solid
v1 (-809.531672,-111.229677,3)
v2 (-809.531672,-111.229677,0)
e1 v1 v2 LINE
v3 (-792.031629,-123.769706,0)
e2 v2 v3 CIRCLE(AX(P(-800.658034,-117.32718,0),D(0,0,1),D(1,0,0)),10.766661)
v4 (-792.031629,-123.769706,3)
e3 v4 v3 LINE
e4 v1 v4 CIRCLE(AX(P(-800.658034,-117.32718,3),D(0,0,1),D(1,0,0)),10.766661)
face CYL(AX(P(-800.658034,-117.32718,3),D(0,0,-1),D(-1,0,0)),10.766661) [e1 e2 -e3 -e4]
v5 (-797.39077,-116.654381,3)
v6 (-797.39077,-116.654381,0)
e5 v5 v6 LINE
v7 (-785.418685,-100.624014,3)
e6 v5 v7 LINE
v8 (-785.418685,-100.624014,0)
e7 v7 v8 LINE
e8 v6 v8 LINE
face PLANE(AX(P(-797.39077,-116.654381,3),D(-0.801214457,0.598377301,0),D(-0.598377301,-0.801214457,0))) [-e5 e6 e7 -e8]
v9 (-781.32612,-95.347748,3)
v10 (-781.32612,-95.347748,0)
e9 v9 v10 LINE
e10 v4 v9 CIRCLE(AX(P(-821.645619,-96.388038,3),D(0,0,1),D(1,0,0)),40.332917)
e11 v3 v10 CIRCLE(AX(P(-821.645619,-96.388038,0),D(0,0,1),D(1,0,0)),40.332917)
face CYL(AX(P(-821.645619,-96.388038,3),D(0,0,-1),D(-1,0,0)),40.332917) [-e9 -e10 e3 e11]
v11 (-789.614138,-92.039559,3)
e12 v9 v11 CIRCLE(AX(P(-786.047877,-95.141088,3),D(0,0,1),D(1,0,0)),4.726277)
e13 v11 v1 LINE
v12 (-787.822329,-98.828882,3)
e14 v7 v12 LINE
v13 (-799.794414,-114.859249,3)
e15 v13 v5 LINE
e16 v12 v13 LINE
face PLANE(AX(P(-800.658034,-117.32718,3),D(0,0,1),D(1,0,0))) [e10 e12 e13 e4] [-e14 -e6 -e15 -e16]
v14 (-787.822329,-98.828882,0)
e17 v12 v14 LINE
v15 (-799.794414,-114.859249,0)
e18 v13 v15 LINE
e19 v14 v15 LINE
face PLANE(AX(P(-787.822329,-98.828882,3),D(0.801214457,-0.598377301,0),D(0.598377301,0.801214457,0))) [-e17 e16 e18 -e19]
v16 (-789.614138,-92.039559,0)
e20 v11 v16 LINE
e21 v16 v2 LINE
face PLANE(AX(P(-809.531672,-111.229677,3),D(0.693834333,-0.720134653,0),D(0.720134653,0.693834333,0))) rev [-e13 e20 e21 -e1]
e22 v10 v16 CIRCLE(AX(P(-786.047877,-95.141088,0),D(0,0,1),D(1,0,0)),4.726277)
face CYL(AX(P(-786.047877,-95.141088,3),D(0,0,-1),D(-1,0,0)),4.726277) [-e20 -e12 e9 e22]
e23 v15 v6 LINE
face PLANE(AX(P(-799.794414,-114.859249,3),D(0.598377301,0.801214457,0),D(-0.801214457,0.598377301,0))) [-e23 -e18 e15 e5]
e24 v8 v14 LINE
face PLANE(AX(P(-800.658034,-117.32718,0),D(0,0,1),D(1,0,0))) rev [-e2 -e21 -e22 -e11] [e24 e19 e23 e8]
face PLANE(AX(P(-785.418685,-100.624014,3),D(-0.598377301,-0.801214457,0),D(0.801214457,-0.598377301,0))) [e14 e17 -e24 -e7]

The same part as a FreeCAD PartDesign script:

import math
import FreeCAD as App
import Part
import Sketcher


def add_polygon(sketch, points):
    """Adds a closed chain of lines whose ends are joined by coincident constraints."""
    first, n = sketch.GeometryCount, len(points)
    for a, b in zip(points, points[1:] + points[:1]):
        sketch.addGeometry(Part.LineSegment(App.Vector(*a, 0), App.Vector(*b, 0)), False)
    for i in range(n):
        sketch.addConstraint(Sketcher.Constraint("Coincident", first + i, 2, first + (i + 1) % n, 1))

doc = App.newDocument("Part")
body = doc.addObject("PartDesign::Body", "Body")

sketch1 = doc.addObject("Sketcher::SketchObject", "Sketch")
body.addObject(sketch1)
sketch1.AttachmentSupport = (doc.XY_Plane, [""])
sketch1.MapMode = "FlatFace"
sketch1.addGeometry(Part.LineSegment(App.Vector(-789.6, -92, 0), App.Vector(-809.5, -111.2, 0)), False)
sketch1.addGeometry(Part.ArcOfCircle(Part.Circle(App.Vector(-800.7, -117.3, 0), App.Vector(0, 0, 1), 10.8), math.radians(146), math.radians(323)), False)
sketch1.addGeometry(Part.ArcOfCircle(Part.Circle(App.Vector(-821.6, -96.4, 0), App.Vector(0, 0, 1), 40.3), math.radians(-43), math.radians(1)), False)
sketch1.addGeometry(Part.ArcOfCircle(Part.Circle(App.Vector(-786, -95.1, 0), App.Vector(0, 0, 1), 4.7), math.radians(-3), math.radians(139)), False)
add_polygon(sketch1, [(-797.4, -116.7), (-799.8, -114.9), (-787.8, -98.8), (-785.4, -100.6)])
sketch1.addConstraint(Sketcher.Constraint("Coincident", 0, 2, 1, 1))
sketch1.addConstraint(Sketcher.Constraint("Coincident", 1, 2, 2, 1))
sketch1.addConstraint(Sketcher.Constraint("Coincident", 2, 2, 3, 1))
sketch1.addConstraint(Sketcher.Constraint("Coincident", 3, 2, 0, 1))
sketch1.addConstraint(Sketcher.Constraint("Perpendicular", 4, 5))
sketch1.addConstraint(Sketcher.Constraint("Perpendicular", 5, 6))
sketch1.addConstraint(Sketcher.Constraint("Perpendicular", 6, 7))
sketch1.addConstraint(Sketcher.Constraint("Distance", 4, 3.0))
sketch1.addConstraint(Sketcher.Constraint("Radius", 1, 10.766661))
sketch1.addConstraint(Sketcher.Constraint("Radius", 2, 40.332917))
sketch1.addConstraint(Sketcher.Constraint("Radius", 3, 4.726277))
sketch1.addConstraint(Sketcher.Constraint("DistanceX", 2, 3, 2, 2, 40.319499))
sketch1.addConstraint(Sketcher.Constraint("DistanceY", 1, 3, 5, 2, 18.498298))
sketch1.addConstraint(Sketcher.Constraint("DistanceY", 1, 3, 7, 2, 0.672799))
sketch1.addConstraint(Sketcher.Constraint("DistanceX", 0, 2, 7, 2, 12.140901))
sketch1.addConstraint(Sketcher.Constraint("Distance", 0, 27.658069))
sketch1.addConstraint(Sketcher.Constraint("DistanceY", 1, 3, -1, 1, 117.32718))
sketch1.addConstraint(Sketcher.Constraint("DistanceX", 2, 3, -1, 1, 821.645619))
sketch1.addConstraint(Sketcher.Constraint("DistanceX", 0, 2, -1, 1, 809.531672))
sketch1.addConstraint(Sketcher.Constraint("DistanceX", 1, 2, -1, 1, 792.031629))
sketch1.addConstraint(Sketcher.Constraint("DistanceY", 2, 2, -1, 1, 95.347748))
sketch1.addConstraint(Sketcher.Constraint("DistanceX", 3, 2, -1, 1, 789.614138))
sketch1.addConstraint(Sketcher.Constraint("DistanceY", 4, 2, -1, 1, 114.859249))
pad1 = doc.addObject("PartDesign::Pad", "Pad")
body.addObject(pad1)
pad1.Profile = sketch1
pad1.Length = 3

doc.recompute()
